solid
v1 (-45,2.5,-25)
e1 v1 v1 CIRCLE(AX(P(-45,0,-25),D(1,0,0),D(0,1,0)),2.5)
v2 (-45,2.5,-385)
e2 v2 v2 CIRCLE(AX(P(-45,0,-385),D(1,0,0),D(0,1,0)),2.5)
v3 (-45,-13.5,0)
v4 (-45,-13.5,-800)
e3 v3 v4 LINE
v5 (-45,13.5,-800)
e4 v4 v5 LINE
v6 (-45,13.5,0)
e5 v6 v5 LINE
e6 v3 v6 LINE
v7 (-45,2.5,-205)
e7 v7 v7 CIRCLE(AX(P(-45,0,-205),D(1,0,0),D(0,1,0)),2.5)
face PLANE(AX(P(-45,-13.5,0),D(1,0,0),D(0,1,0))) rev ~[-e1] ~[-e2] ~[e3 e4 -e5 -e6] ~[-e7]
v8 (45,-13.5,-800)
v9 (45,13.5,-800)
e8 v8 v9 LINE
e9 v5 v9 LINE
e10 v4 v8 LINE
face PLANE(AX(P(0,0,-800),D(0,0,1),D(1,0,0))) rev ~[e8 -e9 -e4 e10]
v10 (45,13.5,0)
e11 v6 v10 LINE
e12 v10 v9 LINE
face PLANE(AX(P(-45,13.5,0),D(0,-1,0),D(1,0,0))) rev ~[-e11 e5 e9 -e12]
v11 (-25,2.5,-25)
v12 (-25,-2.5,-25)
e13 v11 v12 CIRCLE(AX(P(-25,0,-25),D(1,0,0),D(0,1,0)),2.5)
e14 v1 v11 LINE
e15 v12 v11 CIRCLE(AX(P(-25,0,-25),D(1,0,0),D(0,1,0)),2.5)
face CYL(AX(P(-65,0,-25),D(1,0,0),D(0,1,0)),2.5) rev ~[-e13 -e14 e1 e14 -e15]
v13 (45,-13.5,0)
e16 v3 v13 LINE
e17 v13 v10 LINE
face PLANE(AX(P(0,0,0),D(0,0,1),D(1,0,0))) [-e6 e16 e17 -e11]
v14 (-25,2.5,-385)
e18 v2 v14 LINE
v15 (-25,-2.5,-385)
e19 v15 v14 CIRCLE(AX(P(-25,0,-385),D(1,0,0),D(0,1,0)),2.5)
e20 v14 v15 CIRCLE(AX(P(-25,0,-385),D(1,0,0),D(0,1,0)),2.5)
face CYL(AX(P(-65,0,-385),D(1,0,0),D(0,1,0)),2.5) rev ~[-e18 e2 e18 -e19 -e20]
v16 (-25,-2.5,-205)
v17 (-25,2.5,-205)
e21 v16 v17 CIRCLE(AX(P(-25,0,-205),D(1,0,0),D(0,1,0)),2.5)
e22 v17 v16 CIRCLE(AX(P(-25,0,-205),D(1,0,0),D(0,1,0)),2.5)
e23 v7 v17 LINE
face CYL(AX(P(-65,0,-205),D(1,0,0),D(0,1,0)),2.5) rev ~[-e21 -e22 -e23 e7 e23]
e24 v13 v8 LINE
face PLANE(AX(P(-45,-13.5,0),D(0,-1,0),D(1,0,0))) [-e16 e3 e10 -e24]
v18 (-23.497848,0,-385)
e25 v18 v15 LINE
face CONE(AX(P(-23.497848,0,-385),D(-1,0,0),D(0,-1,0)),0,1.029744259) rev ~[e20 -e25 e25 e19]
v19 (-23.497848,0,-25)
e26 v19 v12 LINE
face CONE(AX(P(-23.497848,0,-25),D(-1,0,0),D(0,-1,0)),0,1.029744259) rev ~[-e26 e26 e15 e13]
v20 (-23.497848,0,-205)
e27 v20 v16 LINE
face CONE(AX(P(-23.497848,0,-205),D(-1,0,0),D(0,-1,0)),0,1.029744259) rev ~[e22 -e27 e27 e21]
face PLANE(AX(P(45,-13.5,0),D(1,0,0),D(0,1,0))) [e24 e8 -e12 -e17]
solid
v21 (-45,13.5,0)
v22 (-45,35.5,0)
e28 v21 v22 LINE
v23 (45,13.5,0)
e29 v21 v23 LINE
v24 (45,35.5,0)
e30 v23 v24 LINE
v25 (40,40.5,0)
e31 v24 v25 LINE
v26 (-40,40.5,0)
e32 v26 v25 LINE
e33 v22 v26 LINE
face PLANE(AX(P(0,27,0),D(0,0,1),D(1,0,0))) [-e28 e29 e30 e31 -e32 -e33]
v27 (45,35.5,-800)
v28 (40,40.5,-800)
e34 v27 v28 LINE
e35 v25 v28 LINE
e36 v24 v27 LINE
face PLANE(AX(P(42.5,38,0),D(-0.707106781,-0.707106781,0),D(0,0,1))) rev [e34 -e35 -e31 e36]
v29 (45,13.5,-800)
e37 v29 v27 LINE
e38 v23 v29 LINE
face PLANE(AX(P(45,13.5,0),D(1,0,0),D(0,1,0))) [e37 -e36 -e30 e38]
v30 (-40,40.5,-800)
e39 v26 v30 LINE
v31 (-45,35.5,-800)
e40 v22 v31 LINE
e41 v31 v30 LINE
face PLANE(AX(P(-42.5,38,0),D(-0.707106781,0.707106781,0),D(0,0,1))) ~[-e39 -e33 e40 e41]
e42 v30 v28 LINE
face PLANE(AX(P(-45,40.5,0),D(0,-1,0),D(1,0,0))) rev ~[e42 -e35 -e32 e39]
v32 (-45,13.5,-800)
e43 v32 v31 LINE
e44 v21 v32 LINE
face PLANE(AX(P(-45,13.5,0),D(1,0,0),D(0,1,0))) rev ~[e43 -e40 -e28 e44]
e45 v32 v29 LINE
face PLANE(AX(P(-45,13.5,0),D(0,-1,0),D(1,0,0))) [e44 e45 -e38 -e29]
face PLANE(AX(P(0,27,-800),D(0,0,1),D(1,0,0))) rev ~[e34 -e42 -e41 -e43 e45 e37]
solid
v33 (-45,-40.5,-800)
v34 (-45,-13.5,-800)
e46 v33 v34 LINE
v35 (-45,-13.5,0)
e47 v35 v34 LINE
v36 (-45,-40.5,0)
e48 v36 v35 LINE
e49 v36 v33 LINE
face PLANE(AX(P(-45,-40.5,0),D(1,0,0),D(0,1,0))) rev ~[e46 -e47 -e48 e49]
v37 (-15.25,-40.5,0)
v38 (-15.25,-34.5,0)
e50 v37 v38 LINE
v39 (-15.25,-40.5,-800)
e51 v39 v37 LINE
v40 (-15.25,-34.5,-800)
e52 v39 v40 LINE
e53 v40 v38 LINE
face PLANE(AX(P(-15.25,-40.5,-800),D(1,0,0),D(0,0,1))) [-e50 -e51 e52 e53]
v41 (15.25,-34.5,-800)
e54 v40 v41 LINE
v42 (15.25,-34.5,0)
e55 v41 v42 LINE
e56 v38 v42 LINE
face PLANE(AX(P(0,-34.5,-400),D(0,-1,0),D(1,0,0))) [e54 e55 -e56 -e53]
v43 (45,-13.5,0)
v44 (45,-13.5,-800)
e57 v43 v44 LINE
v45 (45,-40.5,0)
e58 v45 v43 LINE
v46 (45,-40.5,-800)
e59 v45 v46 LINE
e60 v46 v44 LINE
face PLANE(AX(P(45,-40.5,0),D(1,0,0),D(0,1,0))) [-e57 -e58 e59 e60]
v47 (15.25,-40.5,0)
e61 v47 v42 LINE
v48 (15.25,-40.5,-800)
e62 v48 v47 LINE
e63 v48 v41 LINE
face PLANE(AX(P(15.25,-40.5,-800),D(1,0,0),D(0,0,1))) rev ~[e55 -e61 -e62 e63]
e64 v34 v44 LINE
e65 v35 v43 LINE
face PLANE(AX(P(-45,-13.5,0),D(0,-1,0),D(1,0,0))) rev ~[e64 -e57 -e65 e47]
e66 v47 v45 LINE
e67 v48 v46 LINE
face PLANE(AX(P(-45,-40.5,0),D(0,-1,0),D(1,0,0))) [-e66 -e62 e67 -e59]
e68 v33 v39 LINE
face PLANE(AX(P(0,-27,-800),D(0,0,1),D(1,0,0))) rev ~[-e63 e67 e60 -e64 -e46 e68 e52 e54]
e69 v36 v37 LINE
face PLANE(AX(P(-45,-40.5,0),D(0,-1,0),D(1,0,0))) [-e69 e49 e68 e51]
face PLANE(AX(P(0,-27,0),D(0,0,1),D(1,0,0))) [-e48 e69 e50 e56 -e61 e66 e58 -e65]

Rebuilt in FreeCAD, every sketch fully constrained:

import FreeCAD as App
import Part
import Sketcher
from FreeCAD import Vector
Q = App.Units.Quantity


def edges_at(feature, points):
    """Names of the edges that pass closest to the given points."""
    edges = feature.Shape.Edges
    near = lambda p: min(range(len(edges)), key=lambda i: edges[i].distToShape(Part.Vertex(*p))[0])
    return sorted({f"Edge{near(p) + 1}" for p in points})


def add_polygon(sketch, points):
    """Adds a closed chain of lines whose ends are joined by coincident constraints."""
    first, n = sketch.GeometryCount, len(points)
    for a, b in zip(points, points[1:] + points[:1]):
        sketch.addGeometry(Part.LineSegment(App.Vector(*a, 0), App.Vector(*b, 0)), False)
    for i in range(n):
        sketch.addConstraint(Sketcher.Constraint("Coincident", first + i, 2, first + (i + 1) % n, 1))

doc = App.newDocument("Part")
body = doc.addObject("PartDesign::Body", "Body")

# Sketch on XY plane
sketch1 = body.newObject("Sketcher::SketchObject", "Sketch")
sketch1.AttachmentSupport = (doc.getObject("XY_Plane"), [""])
sketch1.MapMode = "FlatFace"
add_polygon(sketch1, [(-45, 14), (-45, -14), (45, -14), (45, 14)])  # lines 0-3
sketch1.addConstraint([
    Sketcher.Constraint("Vertical", 0),
    Sketcher.Constraint("Horizontal", 1),
    Sketcher.Constraint("Vertical", 2),
    Sketcher.Constraint("Horizontal", 3),
    Sketcher.Constraint("Symmetric", 0, 2, 2, 2, -1, 1),
    Sketcher.Constraint("DistanceX", 1, 1, 1, 2, Q("90 mm")),
    Sketcher.Constraint("DistanceY", 0, 2, 0, 1, Q("27 mm")),
])
pad1 = body.newObject("PartDesign::Pad", "Pad")
pad1.Profile = sketch1
pad1.Length = 800
pad1.Reversed = True

# Sketch on YZ plane
sketch2 = body.newObject("Sketcher::SketchObject", "Sketch001")
sketch2.AttachmentSupport = (doc.getObject("YZ_Plane"), [""])
sketch2.MapMode = "FlatFace"
sketch2.AttachmentOffset = App.Placement(Vector(0, 0, -45), App.Rotation())
sketch2.addGeometry([
    Part.Circle(Vector(0, -25, 0), Vector(0, 0, 1), 2.5),
    Part.Circle(Vector(0, -205, 0), Vector(0, 0, 1), 2.5),
    Part.Circle(Vector(0, -385, 0), Vector(0, 0, 1), 2.5),
], False)
sketch2.addConstraint([
    Sketcher.Constraint("Equal", 0, 1),
    Sketcher.Constraint("Equal", 1, 2),
    Sketcher.Constraint("PointOnObject", 0, 3, -2),
    Sketcher.Constraint("PointOnObject", 1, 3, -2),
    Sketcher.Constraint("PointOnObject", 2, 3, -2),
    Sketcher.Constraint("Diameter", 0, Q("5 mm")),
    Sketcher.Constraint("DistanceY", 0, 3, -1, 1, Q("25 mm")),
    Sketcher.Constraint("DistanceY", 1, 3, -1, 1, Q("205 mm")),
    Sketcher.Constraint("DistanceY", 2, 3, -1, 1, Q("385 mm")),
])
doc.recompute()
hole = body.newObject("PartDesign::Hole", "Hole")
hole.Profile = sketch2
hole.ThreadType = "None"
hole.Diameter = 5
hole.DepthType = "Dimension"
hole.Depth = 20
hole.DrillPoint = "Angled"
hole.DrillPointAngle = 118
hole.Reversed = True
body2 = doc.addObject("PartDesign::Body", "Body001")

# Sketch on XY plane
sketch3 = body2.newObject("Sketcher::SketchObject", "Sketch002")
sketch3.AttachmentSupport = (doc.getObject("XY_Plane001"), [""])
sketch3.MapMode = "FlatFace"
add_polygon(sketch3, [(-45, 40), (-45, 14), (45, 14), (45, 40)])  # lines 0-3
sketch3.addConstraint([
    Sketcher.Constraint("Vertical", 0),
    Sketcher.Constraint("Horizontal", 1),
    Sketcher.Constraint("Vertical", 2),
    Sketcher.Constraint("Horizontal", 3),
    Sketcher.Constraint("DistanceX", 1, 1, 1, 2, Q("90 mm")),
    Sketcher.Constraint("DistanceY", 0, 2, 0, 1, Q("27 mm")),
    Sketcher.Constraint("DistanceX", 0, 2, -1, 1, Q("45 mm")),
    Sketcher.Constraint("DistanceY", -1, 1, 0, 2, Q("13.5 mm")),
])
pad2 = body2.newObject("PartDesign::Pad", "Pad001")
pad2.Profile = sketch3
pad2.Length = 800
pad2.Reversed = True
doc.recompute()

chamfer = body2.newObject("PartDesign::Chamfer", "Chamfer")
chamfer.Base = (pad2, edges_at(pad2, [(45, 40.5, -400), (-45, 40.5, -400)]))
chamfer.Size = 5
body3 = doc.addObject("PartDesign::Body", "Body002")

# Sketch on XY plane
sketch4 = body3.newObject("Sketcher::SketchObject", "Sketch003")
sketch4.AttachmentSupport = (doc.getObject("XY_Plane002"), [""])
sketch4.MapMode = "FlatFace"
add_polygon(sketch4, [(-45, -14), (-45, -40), (45, -40), (45, -14)])  # lines 0-3
sketch4.addConstraint([
    Sketcher.Constraint("Vertical", 0),
    Sketcher.Constraint("Horizontal", 1),
    Sketcher.Constraint("Vertical", 2),
    Sketcher.Constraint("Horizontal", 3),
    Sketcher.Constraint("DistanceX", 1, 1, 1, 2, Q("90 mm")),
    Sketcher.Constraint("DistanceY", 0, 2, 0, 1, Q("27 mm")),
    Sketcher.Constraint("DistanceX", 0, 2, -1, 1, Q("45 mm")),
    Sketcher.Constraint("DistanceY", 0, 2, -1, 1, Q("40.5 mm")),
])
pad3 = body3.newObject("PartDesign::Pad", "Pad002")
pad3.Profile = sketch4
pad3.Length = 800
pad3.Reversed = True

# Sketch on XZ plane
sketch5 = body3.newObject("Sketcher::SketchObject", "Sketch004")
sketch5.AttachmentSupport = (doc.getObject("XZ_Plane002"), [""])
sketch5.MapMode = "FlatFace"
sketch5.AttachmentOffset = App.Placement(Vector(0, 0, 40.5), App.Rotation())
add_polygon(sketch5, [(-15, 0), (-15, -800), (15, -800), (15, 0)])  # lines 0-3
sketch5.addConstraint([
    Sketcher.Constraint("Vertical", 0),
    Sketcher.Constraint("Horizontal", 1),
    Sketcher.Constraint("Vertical", 2),
    Sketcher.Constraint("Horizontal", 3),
    Sketcher.Constraint("Symmetric", 2, 2, 3, 2, -1, 1),
    Sketcher.Constraint("DistanceY", 0, 2, 0, 1, Q("800 mm")),
    Sketcher.Constraint("DistanceX", 1, 1, 1, 2, Q("30.5 mm")),
])
pocket1 = body3.newObject("PartDesign::Pocket", "Pocket")
pocket1.Profile = sketch5
pocket1.Length = 6

doc.recompute()
